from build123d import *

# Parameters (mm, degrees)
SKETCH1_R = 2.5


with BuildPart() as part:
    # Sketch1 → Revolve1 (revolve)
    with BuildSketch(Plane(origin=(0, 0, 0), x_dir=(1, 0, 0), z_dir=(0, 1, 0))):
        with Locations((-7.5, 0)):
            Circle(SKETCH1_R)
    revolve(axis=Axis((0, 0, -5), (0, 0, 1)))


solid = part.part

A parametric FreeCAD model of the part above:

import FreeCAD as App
import Part
import Sketcher
from FreeCAD import Vector
Q = App.Units.Quantity

doc = App.newDocument("Part")
body = doc.addObject("PartDesign::Body", "Body")

# Sketch on XZ plane
sketch1 = doc.addObject("Sketcher::SketchObject", "Sketch")
body.addObject(sketch1)
sketch1.AttachmentSupport = (doc.XZ_Plane, [""])
sketch1.MapMode = "FlatFace"
sketch1.addGeometry(Part.Circle(Vector(-7.5, 0, 0), Vector(0, 0, 1), 2.5), False)
sketch1.addConstraint(Sketcher.Constraint("PointOnObject", 0, 3, -1))
sketch1.addConstraint(Sketcher.Constraint("Diameter", 0, Q("5 mm")))
sketch1.addConstraint(Sketcher.Constraint("DistanceX", 0, 3, -1, 1, Q("7.5 mm")))
revolution = doc.addObject("PartDesign::Revolution", "Revolution")
body.addObject(revolution)
revolution.Profile = sketch1
revolution.ReferenceAxis = (sketch1, ["V_Axis"])
revolution.Angle = 360

doc.recompute()
